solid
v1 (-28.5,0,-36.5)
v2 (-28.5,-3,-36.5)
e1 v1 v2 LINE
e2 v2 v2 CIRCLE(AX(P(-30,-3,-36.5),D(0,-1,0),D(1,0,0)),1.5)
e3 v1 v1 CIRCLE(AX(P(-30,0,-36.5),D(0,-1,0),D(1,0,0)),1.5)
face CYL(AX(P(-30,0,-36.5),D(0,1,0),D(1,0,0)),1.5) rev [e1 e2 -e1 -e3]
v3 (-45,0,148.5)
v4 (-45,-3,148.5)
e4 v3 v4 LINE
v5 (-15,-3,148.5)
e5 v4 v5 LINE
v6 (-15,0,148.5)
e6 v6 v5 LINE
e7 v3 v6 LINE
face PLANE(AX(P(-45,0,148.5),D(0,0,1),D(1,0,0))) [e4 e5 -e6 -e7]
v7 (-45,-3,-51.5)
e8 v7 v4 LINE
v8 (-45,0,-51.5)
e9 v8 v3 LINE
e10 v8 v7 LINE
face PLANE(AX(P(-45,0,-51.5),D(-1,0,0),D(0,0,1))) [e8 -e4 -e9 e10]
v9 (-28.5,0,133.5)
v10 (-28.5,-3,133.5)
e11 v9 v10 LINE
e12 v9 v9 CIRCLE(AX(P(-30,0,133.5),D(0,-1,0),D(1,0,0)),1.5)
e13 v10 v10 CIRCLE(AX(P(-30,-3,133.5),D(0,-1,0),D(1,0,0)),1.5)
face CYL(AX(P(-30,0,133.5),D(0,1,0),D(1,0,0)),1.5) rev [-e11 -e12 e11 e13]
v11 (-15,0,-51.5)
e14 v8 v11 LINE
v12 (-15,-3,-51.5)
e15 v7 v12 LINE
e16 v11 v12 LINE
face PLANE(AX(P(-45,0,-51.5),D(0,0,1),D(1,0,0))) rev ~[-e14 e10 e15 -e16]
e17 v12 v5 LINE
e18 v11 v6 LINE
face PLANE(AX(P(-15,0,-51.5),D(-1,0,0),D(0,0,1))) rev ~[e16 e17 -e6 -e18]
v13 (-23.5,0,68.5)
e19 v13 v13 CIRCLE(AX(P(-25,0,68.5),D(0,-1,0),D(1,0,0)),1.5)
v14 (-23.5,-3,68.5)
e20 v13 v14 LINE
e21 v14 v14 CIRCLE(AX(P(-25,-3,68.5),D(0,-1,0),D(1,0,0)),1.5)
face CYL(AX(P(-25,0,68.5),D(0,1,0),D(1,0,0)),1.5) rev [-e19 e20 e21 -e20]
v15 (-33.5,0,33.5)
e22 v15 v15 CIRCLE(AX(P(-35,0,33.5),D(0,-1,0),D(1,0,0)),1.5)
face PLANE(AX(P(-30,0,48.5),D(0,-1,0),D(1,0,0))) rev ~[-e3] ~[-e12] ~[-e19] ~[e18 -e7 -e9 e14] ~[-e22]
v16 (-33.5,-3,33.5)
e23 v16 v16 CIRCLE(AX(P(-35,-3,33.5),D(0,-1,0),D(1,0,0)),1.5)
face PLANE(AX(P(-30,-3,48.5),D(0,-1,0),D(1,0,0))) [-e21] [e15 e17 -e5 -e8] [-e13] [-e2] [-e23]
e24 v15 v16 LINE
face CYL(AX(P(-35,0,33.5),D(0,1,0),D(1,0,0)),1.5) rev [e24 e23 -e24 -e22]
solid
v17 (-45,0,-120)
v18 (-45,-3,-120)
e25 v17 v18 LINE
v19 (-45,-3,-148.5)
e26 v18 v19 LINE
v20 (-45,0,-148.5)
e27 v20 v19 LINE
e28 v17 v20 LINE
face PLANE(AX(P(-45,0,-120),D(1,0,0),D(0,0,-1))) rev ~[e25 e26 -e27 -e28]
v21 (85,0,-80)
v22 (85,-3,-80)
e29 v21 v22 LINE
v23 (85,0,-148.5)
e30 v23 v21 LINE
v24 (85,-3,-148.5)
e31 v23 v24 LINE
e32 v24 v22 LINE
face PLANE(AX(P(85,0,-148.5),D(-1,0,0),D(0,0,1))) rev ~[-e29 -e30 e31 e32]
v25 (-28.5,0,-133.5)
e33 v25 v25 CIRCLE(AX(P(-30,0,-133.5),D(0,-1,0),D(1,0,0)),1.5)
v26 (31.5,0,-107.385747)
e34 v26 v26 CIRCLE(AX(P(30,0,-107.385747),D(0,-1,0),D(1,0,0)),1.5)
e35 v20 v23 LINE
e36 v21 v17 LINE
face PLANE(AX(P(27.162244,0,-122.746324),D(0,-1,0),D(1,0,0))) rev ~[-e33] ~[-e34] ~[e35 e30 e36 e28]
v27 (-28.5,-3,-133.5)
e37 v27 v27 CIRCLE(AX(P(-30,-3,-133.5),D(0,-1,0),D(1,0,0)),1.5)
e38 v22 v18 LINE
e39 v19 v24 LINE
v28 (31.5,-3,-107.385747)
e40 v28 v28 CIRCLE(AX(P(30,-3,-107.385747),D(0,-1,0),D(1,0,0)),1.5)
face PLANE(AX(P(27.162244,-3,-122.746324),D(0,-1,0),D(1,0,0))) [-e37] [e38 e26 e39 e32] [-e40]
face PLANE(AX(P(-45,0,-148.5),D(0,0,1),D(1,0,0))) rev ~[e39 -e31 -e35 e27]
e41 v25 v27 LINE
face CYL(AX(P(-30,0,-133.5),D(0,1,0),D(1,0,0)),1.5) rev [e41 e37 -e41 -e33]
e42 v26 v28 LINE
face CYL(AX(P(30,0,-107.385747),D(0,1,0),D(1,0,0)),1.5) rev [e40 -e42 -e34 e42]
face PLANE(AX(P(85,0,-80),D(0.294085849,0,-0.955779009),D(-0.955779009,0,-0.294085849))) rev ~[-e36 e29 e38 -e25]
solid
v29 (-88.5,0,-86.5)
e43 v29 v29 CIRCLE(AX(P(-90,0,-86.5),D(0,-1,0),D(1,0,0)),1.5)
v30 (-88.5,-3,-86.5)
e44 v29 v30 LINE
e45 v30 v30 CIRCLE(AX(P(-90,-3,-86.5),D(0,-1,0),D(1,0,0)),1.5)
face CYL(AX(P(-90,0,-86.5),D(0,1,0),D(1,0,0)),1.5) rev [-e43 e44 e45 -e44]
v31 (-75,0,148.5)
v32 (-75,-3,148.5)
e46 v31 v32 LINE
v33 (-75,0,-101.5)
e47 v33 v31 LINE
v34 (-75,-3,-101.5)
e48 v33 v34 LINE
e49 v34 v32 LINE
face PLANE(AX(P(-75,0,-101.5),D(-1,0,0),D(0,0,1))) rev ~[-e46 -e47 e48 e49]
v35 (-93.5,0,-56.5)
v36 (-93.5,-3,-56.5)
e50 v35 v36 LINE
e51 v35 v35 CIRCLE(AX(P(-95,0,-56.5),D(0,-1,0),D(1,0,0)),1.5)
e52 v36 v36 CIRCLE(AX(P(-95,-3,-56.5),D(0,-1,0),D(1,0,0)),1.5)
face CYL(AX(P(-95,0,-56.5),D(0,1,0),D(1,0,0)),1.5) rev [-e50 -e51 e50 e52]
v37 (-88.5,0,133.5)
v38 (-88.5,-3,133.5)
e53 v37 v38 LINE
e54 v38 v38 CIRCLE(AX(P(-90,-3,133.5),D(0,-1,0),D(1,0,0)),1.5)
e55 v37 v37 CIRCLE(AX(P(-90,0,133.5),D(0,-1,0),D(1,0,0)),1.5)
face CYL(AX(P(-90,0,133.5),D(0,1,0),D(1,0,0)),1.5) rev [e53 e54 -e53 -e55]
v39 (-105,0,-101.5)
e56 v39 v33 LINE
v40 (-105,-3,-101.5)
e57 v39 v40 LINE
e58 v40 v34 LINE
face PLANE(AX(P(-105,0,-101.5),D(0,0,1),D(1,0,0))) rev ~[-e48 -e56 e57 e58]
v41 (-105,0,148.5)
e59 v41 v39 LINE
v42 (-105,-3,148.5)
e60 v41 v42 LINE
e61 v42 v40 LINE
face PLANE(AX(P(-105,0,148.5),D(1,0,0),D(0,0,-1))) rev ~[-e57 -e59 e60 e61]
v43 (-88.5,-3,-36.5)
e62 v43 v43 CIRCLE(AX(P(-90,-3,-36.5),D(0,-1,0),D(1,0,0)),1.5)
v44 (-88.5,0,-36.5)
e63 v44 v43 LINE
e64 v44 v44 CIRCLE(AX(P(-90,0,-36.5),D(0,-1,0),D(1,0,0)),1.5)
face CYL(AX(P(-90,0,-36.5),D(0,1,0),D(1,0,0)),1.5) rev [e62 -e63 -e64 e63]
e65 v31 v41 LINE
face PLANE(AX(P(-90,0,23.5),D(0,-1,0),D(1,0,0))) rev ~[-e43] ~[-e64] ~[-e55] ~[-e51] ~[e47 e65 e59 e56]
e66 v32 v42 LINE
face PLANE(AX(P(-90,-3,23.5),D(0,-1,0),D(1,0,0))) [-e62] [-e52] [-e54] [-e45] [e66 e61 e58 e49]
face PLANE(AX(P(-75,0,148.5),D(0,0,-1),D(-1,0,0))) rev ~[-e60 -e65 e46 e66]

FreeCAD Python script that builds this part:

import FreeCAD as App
import Part
import Sketcher
from FreeCAD import Vector
Q = App.Units.Quantity

doc = App.newDocument("Part")
body = doc.addObject("PartDesign::Body", "Body")
body.AllowCompound = True

sketch1 = body.newObject("Sketcher::SketchObject", "Sketch")
sketch1.AttachmentSupport = (doc.getObject("XZ_Plane"), [""])
sketch1.MapMode = "FlatFace"
sketch1.addGeometry([
    Part.LineSegment(Vector(-75, -101.5, 0), Vector(-75, 148.5, 0)),
    Part.LineSegment(Vector(-75, 148.5, 0), Vector(-105, 148.5, 0)),
    Part.LineSegment(Vector(-105, 148.5, 0), Vector(-105, -101.5, 0)),
    Part.LineSegment(Vector(-105, -101.5, 0), Vector(-75, -101.5, 0)),
    Part.Circle(Vector(-95, -56.5, 0), Vector(0, 0, 1), 1.5),
    Part.Circle(Vector(-90, -86.5, 0), Vector(0, 0, 1), 1.5),
    Part.Circle(Vector(-90, -36.5, 0), Vector(0, 0, 1), 1.5),
    Part.Circle(Vector(-90, 133.5, 0), Vector(0, 0, 1), 1.5),
    Part.LineSegment(Vector(-45, 148.5, 0), Vector(-45, -51.5, 0)),
    Part.LineSegment(Vector(-45, -51.5, 0), Vector(-15, -51.5, 0)),
    Part.LineSegment(Vector(-15, -51.5, 0), Vector(-15, 148.5, 0)),
    Part.LineSegment(Vector(-15, 148.5, 0), Vector(-45, 148.5, 0)),
    Part.Circle(Vector(-35, 33.5, 0), Vector(0, 0, 1), 1.5),
    Part.Circle(Vector(-30, -36.5, 0), Vector(0, 0, 1), 1.5),
    Part.Circle(Vector(-25, 68.5, 0), Vector(0, 0, 1), 1.5),
    Part.Circle(Vector(-30, 133.5, 0), Vector(0, 0, 1), 1.5),
    Part.LineSegment(Vector(-45, -148.5, 0), Vector(85, -148.5, 0)),
    Part.LineSegment(Vector(85, -148.5, 0), Vector(85, -80, 0)),
    Part.LineSegment(Vector(85, -80, 0), Vector(-45, -120, 0)),
    Part.LineSegment(Vector(-45, -120, 0), Vector(-45, -148.5, 0)),
    Part.Circle(Vector(-30, -133.5, 0), Vector(0, 0, 1), 1.5),
    Part.Circle(Vector(30, -107.4, 0), Vector(0, 0, 1), 1.5),
], False)
sketch1.addConstraint([
    Sketcher.Constraint("Coincident", 0, 2, 1, 1),
    Sketcher.Constraint("Coincident", 1, 2, 2, 1),
    Sketcher.Constraint("Coincident", 2, 2, 3, 1),
    Sketcher.Constraint("Coincident", 3, 2, 0, 1),
    Sketcher.Constraint("Coincident", 8, 2, 9, 1),
    Sketcher.Constraint("Coincident", 9, 2, 10, 1),
    Sketcher.Constraint("Coincident", 10, 2, 11, 1),
    Sketcher.Constraint("Coincident", 11, 2, 8, 1),
    Sketcher.Constraint("Coincident", 16, 2, 17, 1),
    Sketcher.Constraint("Coincident", 17, 2, 18, 1),
    Sketcher.Constraint("Coincident", 18, 2, 19, 1),
    Sketcher.Constraint("Coincident", 19, 2, 16, 1),
    Sketcher.Constraint("Vertical", 0),
    Sketcher.Constraint("Horizontal", 1),
    Sketcher.Constraint("Vertical", 2),
    Sketcher.Constraint("Horizontal", 3),
    Sketcher.Constraint("Vertical", 8),
    Sketcher.Constraint("Horizontal", 9),
    Sketcher.Constraint("Vertical", 10),
    Sketcher.Constraint("Horizontal", 11),
    Sketcher.Constraint("Horizontal", 16),
    Sketcher.Constraint("Vertical", 17),
    Sketcher.Constraint("Vertical", 19),
    Sketcher.Constraint("Equal", 4, 5),
    Sketcher.Constraint("Equal", 5, 6),
    Sketcher.Constraint("Equal", 6, 7),
    Sketcher.Constraint("Equal", 7, 12),
    Sketcher.Constraint("Equal", 12, 13),
    Sketcher.Constraint("Equal", 13, 14),
    Sketcher.Constraint("Equal", 14, 15),
    Sketcher.Constraint("Equal", 15, 20),
    Sketcher.Constraint("Equal", 20, 21),
    Sketcher.Constraint("Symmetric", 15, 3, 20, 3, -1),
    Sketcher.Constraint("Symmetric", 11, 2, 19, 2, -1),
    Sketcher.Constraint("Horizontal", 6, 3, 13, 3),
    Sketcher.Constraint("Horizontal", 7, 3, 15, 3),
    Sketcher.Constraint("Horizontal", 1, 2, 10, 2),
    Sketcher.Constraint("Vertical", 5, 3, 6, 3),
    Sketcher.Constraint("Vertical", 6, 3, 7, 3),
    Sketcher.Constraint("Vertical", 13, 3, 15, 3),
    Sketcher.Constraint("Equal", 3, 9),
    Sketcher.Constraint("Diameter", 4, Q("3 mm")),
    Sketcher.Constraint("DistanceX", 1, 2, 1, 1, Q("30 mm")),
    Sketcher.Constraint("DistanceX", 16, 1, 16, 2, Q("130 mm")),
    Sketcher.Constraint("DistanceY", 0, 1, 0, 2, Q("250 mm")),
    Sketcher.Constraint("DistanceY", 8, 2, 8, 1, Q("200 mm")),
    Sketcher.Constraint("DistanceY", 17, 1, 17, 2, Q("68.5 mm")),
    Sketcher.Constraint("DistanceY", 19, 2, 19, 1, Q("28.5 mm")),
    Sketcher.Constraint("DistanceX", 4, 3, -1, 1, Q("95 mm")),
    Sketcher.Constraint("DistanceX", 5, 3, -1, 1, Q("90 mm")),
    Sketcher.Constraint("DistanceX", 12, 3, -1, 1, Q("35 mm")),
    Sketcher.Constraint("DistanceX", 13, 3, -1, 1, Q("30 mm")),
    Sketcher.Constraint("DistanceX", 14, 3, -1, 1, Q("25 mm")),
    Sketcher.Constraint("DistanceX", -1, 1, 21, 3, Q("30 mm")),
    Sketcher.Constraint("DistanceX", 0, 2, -1, 1, Q("75 mm")),
    Sketcher.Constraint("DistanceX", 8, 2, -1, 1, Q("45 mm")),
    Sketcher.Constraint("DistanceY", 17, 2, -1, 1, Q("80 mm")),
    Sketcher.Constraint("DistanceY", 5, 3, 4, 3, Q("30 mm")),
    Sketcher.Constraint("DistanceY", 4, 3, 6, 3, Q("20 mm")),
    Sketcher.Constraint("DistanceY", 6, 3, 7, 3, Q("170 mm")),
    Sketcher.Constraint("DistanceY", 6, 3, 12, 3, Q("70 mm")),
    Sketcher.Constraint("DistanceY", 12, 3, 14, 3, Q("35 mm")),
    Sketcher.Constraint("DistanceY", 20, 3, 5, 3, Q("47 mm")),
    Sketcher.Constraint("DistanceY", 21, 3, -1, 1, Q("107.385747 mm")),
])
pad1 = body.newObject("PartDesign::Pad", "Pad")
pad1.Profile = sketch1
pad1.Length = 3

doc.recompute()
